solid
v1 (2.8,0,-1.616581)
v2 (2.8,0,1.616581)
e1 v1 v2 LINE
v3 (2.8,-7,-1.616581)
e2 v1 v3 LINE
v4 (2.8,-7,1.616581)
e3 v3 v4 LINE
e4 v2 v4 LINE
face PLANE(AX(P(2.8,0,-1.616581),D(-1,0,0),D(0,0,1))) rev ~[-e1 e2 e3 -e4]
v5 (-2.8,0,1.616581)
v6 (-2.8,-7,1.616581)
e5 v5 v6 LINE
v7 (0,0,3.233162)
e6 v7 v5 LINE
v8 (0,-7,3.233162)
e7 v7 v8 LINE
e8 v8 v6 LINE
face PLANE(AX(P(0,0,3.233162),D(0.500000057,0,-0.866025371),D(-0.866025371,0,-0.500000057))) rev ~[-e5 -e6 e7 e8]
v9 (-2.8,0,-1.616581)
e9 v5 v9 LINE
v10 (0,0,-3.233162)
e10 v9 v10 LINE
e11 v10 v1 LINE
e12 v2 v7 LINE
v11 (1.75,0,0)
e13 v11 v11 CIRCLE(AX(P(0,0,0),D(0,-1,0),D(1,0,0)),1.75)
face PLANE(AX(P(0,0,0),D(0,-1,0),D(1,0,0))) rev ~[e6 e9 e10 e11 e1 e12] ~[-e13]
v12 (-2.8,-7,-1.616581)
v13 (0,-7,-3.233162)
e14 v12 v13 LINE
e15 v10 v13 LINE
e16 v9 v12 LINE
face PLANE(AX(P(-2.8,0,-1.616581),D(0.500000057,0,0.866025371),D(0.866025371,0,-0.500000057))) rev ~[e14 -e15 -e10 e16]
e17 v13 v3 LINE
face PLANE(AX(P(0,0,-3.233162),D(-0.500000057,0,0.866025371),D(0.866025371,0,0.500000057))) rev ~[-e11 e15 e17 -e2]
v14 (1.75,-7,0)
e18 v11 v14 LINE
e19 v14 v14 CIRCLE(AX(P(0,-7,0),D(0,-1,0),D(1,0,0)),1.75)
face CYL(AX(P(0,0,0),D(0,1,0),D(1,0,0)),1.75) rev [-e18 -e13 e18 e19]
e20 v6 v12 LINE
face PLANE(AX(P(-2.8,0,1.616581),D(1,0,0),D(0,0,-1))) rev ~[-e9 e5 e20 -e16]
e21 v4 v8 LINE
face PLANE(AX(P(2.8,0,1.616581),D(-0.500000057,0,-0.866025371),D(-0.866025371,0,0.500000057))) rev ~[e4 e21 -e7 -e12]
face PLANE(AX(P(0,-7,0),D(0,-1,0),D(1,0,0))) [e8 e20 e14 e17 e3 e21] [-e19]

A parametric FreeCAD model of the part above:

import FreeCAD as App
import Part
import Sketcher
Q = App.Units.Quantity

doc = App.newDocument("Part")
params = doc.addObject("Spreadsheet::Sheet", "Params")
for row, (alias, value) in enumerate([
    ("sketch1_diameter", "3.5 mm"),
    ("pad1_length", "7 mm"),
], start=1):
    params.set(f"A{row}", alias)
    params.set(f"B{row}", "=" + value)
    params.setAlias(f"B{row}", alias)

body = doc.addObject("PartDesign::Body", "Body")

sketch1 = body.newObject("Sketcher::SketchObject", "Sketch")
sketch1.AttachmentSupport = (doc.getObject("XZ_Plane"), [""])
sketch1.MapMode = "FlatFace"
sketch1.addGeometry([
    Part.LineSegment(App.Vector(2.8, 1.616581, 0), App.Vector(0, 3.233162, 0)),
    Part.LineSegment(App.Vector(0, 3.233162, 0), App.Vector(-2.8, 1.616581, 0)),
    Part.LineSegment(App.Vector(-2.8, 1.616581, 0), App.Vector(-2.8, -1.616581, 0)),
    Part.LineSegment(App.Vector(-2.8, -1.616581, 0), App.Vector(0, -3.233162, 0)),
    Part.LineSegment(App.Vector(0, -3.233162, 0), App.Vector(2.8, -1.616581, 0)),
    Part.LineSegment(App.Vector(2.8, -1.616581, 0), App.Vector(2.8, 1.616581, 0)),
    Part.Circle(App.Vector(0, 0, 0), App.Vector(0, 0, 1), 1.75),
], False)
sketch1.addConstraint([
    Sketcher.Constraint("Coincident", 0, 2, 1, 1),
    Sketcher.Constraint("Coincident", 1, 2, 2, 1),
    Sketcher.Constraint("Coincident", 2, 2, 3, 1),
    Sketcher.Constraint("Coincident", 3, 2, 4, 1),
    Sketcher.Constraint("Coincident", 4, 2, 5, 1),
    Sketcher.Constraint("Coincident", 5, 2, 0, 1),
    Sketcher.Constraint("Vertical", 2),
    Sketcher.Constraint("Vertical", 5),
    Sketcher.Constraint("Coincident", 6, 3, -1, 1),
    Sketcher.Constraint("Symmetric", 0, 2, 3, 2, -1, 1),
    Sketcher.Constraint("Symmetric", 1, 2, 4, 2, -1, 1),
    Sketcher.Constraint("PointOnObject", 0, 2, -2),
    Sketcher.Constraint("Parallel", 0, 3),
    Sketcher.Constraint("Horizontal", 2, 2, 4, 2),
    Sketcher.Constraint("Diameter", 6, 3.5),
    Sketcher.Constraint("Angle", 0, Q("149.999996 deg")),
    Sketcher.Constraint("DistanceX", 1, 2, -1, 1, 2.8),
    Sketcher.Constraint("DistanceY", 2, 2, 2, 1, 3.233162),
])
sketch1.setExpression("Constraints[14]", "Params.sketch1_diameter")
pad1 = body.newObject("PartDesign::Pad", "Pad")
pad1.Profile = sketch1
pad1.setExpression("Length", "Params.pad1_length")

doc.recompute()
